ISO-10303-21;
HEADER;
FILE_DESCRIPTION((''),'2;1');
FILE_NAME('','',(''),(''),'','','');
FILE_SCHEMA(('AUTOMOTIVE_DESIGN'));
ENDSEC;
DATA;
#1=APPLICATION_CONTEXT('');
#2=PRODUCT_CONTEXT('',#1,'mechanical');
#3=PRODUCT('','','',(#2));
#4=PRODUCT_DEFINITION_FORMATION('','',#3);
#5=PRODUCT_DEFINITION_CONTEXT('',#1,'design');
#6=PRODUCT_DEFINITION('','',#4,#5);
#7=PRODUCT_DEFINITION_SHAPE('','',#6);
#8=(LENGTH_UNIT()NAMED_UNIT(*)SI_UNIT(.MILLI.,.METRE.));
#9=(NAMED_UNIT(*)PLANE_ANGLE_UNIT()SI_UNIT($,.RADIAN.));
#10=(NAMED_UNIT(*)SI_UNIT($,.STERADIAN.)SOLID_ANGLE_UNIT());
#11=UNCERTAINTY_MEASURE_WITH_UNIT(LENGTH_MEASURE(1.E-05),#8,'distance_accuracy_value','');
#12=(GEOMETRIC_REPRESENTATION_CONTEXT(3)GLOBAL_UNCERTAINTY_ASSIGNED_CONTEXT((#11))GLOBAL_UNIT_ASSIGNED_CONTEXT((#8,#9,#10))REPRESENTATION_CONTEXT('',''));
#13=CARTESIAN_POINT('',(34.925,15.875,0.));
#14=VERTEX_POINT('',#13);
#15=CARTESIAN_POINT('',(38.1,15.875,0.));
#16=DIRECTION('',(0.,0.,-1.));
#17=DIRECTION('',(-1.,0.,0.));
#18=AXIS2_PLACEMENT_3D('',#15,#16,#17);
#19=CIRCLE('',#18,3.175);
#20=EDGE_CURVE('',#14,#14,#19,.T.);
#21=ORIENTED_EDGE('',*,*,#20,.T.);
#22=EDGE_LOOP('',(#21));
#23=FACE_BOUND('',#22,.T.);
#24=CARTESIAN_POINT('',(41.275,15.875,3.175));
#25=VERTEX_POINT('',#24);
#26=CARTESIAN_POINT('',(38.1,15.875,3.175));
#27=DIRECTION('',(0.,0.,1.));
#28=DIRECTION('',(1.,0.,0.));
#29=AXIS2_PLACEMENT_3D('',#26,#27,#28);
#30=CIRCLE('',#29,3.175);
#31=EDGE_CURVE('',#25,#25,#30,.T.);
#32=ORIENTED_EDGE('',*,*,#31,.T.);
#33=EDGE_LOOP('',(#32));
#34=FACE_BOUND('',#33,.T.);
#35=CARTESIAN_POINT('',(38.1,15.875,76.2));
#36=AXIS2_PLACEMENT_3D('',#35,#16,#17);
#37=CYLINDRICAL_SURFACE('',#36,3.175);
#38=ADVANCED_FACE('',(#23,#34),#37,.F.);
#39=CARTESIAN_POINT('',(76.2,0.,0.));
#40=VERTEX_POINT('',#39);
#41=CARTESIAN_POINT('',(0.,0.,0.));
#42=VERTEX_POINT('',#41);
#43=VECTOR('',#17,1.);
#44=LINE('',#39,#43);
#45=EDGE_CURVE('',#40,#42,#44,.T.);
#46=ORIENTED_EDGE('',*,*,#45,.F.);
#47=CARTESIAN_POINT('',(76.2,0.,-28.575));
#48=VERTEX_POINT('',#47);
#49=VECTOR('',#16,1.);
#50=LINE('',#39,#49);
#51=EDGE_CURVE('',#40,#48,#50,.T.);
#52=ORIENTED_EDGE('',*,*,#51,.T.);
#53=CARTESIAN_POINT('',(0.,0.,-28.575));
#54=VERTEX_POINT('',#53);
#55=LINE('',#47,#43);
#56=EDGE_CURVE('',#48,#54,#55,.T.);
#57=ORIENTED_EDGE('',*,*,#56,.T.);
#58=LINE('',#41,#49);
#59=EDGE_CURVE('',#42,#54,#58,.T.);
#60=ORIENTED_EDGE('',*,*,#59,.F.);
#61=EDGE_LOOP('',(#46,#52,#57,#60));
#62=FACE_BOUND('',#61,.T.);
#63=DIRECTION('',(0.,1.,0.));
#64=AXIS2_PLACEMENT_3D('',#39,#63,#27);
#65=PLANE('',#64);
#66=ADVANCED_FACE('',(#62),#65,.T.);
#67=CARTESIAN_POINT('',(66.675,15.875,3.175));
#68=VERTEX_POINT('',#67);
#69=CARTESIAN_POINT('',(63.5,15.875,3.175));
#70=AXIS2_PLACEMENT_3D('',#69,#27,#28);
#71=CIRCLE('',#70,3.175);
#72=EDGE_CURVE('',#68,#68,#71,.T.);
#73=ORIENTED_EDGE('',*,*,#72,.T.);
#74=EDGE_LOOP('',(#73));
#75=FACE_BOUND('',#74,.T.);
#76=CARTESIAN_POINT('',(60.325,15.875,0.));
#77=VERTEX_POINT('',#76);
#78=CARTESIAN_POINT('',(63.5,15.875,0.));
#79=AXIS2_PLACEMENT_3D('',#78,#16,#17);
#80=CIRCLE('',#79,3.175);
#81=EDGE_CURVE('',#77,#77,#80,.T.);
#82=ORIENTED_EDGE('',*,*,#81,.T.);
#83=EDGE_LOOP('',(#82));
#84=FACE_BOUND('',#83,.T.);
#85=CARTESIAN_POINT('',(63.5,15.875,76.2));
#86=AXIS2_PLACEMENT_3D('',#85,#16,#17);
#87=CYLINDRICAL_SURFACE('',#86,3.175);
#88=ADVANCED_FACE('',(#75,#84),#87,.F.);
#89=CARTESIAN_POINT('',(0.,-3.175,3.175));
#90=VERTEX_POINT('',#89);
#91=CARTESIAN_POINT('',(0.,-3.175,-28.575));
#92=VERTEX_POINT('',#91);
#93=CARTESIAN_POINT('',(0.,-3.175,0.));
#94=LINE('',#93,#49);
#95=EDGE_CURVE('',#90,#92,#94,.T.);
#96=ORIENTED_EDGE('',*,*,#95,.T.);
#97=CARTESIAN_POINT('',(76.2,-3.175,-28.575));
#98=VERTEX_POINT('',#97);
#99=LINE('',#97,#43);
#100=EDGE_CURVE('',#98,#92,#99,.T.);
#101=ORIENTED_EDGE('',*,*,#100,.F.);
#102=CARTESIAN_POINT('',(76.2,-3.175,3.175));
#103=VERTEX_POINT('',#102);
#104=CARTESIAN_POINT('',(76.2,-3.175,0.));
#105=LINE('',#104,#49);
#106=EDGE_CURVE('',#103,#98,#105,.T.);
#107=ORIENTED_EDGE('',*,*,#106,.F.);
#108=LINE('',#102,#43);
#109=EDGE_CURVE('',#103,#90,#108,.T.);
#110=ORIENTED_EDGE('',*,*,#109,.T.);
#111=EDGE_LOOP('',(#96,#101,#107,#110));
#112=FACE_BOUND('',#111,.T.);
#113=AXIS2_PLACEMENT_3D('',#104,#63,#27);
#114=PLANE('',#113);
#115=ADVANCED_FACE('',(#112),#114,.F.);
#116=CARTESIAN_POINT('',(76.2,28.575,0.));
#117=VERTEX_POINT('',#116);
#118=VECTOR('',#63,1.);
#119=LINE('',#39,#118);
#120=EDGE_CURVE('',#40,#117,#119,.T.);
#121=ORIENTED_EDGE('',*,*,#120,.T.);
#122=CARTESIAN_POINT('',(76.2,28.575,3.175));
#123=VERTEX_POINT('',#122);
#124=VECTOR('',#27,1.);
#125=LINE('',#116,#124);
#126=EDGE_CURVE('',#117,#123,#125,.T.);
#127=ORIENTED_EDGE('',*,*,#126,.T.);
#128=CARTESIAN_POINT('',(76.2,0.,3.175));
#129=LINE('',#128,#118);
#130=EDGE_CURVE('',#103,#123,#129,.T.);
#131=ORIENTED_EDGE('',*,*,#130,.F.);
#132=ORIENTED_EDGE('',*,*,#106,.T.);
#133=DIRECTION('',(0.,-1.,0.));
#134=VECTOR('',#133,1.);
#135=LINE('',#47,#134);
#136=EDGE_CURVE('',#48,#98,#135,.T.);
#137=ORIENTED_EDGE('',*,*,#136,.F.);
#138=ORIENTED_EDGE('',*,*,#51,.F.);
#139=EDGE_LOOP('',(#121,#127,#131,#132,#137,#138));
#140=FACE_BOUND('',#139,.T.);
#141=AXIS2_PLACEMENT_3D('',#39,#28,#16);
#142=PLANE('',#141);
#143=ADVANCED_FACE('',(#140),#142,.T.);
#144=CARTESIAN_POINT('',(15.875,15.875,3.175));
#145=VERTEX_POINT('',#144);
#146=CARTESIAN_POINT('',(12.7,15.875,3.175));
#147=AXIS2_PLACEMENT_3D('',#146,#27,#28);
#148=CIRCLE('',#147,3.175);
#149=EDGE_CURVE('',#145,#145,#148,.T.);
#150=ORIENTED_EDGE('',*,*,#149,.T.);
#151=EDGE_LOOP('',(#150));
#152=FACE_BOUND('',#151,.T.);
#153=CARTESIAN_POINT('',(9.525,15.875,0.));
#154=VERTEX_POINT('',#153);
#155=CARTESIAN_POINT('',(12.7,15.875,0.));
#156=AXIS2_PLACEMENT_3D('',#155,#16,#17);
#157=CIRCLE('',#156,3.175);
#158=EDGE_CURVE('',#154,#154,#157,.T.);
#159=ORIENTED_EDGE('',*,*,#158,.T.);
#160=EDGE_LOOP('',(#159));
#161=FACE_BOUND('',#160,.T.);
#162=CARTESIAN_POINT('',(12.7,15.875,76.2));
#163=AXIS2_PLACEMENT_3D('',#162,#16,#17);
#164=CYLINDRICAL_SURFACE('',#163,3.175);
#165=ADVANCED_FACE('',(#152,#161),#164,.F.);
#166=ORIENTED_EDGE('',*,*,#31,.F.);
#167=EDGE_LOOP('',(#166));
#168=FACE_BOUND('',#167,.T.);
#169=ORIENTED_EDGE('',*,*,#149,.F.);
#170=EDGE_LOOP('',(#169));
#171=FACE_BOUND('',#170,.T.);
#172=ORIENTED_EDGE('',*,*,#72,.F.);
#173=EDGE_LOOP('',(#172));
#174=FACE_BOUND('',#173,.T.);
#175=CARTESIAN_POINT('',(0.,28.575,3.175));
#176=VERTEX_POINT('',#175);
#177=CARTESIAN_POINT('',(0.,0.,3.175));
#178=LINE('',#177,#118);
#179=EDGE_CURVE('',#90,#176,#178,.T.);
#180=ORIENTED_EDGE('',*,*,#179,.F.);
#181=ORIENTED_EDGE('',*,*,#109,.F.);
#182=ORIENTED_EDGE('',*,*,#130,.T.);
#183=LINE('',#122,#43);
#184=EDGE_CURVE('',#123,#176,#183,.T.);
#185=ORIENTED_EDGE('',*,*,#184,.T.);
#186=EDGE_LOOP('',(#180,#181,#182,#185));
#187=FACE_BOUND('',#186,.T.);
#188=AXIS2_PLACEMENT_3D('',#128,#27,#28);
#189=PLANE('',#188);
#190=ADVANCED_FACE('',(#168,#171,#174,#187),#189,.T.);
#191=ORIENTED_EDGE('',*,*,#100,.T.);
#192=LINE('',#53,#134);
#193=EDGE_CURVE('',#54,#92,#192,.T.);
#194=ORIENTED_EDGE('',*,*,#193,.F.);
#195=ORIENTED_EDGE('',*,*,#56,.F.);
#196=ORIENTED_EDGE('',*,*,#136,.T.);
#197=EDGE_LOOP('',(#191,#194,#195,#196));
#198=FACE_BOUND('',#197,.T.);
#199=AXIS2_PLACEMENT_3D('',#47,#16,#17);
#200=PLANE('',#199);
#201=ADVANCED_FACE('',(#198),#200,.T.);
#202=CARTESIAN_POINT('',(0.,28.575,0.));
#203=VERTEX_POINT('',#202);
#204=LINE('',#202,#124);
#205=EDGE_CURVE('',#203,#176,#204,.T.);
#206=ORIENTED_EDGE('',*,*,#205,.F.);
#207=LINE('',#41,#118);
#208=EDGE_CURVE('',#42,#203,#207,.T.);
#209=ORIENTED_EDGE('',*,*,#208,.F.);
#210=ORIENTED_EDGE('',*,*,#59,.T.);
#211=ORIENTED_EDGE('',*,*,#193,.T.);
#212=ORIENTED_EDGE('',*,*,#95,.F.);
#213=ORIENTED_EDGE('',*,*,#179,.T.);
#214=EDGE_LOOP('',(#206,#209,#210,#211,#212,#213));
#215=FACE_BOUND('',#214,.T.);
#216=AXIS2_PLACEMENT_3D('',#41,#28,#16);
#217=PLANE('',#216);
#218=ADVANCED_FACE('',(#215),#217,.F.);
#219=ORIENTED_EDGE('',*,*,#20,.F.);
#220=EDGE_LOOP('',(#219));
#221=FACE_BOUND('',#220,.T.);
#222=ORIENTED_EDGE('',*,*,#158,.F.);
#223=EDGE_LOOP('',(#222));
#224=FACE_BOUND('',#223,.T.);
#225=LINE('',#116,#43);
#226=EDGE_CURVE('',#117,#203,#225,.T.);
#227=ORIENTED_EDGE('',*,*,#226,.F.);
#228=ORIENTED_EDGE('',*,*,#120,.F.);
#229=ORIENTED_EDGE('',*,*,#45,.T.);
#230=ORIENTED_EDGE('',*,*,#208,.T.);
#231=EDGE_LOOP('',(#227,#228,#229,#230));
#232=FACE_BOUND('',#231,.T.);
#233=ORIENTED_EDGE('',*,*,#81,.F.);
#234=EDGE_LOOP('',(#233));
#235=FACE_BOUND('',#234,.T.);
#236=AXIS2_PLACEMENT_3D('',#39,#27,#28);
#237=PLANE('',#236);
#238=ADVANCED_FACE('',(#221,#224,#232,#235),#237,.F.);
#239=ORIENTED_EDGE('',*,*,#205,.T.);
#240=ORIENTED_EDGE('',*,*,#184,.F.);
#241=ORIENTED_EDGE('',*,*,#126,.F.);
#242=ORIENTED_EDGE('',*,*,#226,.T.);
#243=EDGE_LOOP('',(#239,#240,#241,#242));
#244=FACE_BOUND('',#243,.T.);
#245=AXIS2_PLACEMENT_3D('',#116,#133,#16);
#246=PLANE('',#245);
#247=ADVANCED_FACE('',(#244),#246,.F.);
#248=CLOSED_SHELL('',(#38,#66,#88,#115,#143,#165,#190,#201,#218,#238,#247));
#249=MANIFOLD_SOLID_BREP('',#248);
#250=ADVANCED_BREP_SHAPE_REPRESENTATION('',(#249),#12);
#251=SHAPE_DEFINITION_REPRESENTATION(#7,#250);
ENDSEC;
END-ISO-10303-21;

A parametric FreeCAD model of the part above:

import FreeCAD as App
import Part
import Sketcher
from FreeCAD import Vector
Q = App.Units.Quantity


def add_polygon(sketch, points):
    """Adds a closed chain of lines whose ends are joined by coincident constraints."""
    first, n = sketch.GeometryCount, len(points)
    for a, b in zip(points, points[1:] + points[:1]):
        sketch.addGeometry(Part.LineSegment(App.Vector(*a, 0), App.Vector(*b, 0)), False)
    for i in range(n):
        sketch.addConstraint(Sketcher.Constraint("Coincident", first + i, 2, first + (i + 1) % n, 1))

doc = App.newDocument("Part")
body = doc.addObject("PartDesign::Body", "Body")

sketch1 = body.newObject("Sketcher::SketchObject", "Sketch")
sketch1.AttachmentSupport = (doc.getObject("YZ_Plane"), [""])
sketch1.MapMode = "FlatFace"
add_polygon(sketch1, [(28.575, 3.175), (-3.175, 3.175), (-3.175, -28.575), (0, -28.575), (0, 0), (28.575, 0)])
sketch1.addConstraint([
    Sketcher.Constraint("Horizontal", 0),
    Sketcher.Constraint("Vertical", 1),
    Sketcher.Constraint("Horizontal", 2),
    Sketcher.Constraint("Vertical", 3),
    Sketcher.Constraint("Horizontal", 4),
    Sketcher.Constraint("Vertical", 5),
    Sketcher.Constraint("Coincident", 3, 2, -1, 1),
    Sketcher.Constraint("Equal", 0, 1),
    Sketcher.Constraint("Equal", 4, 3),
    Sketcher.Constraint("DistanceX", 0, 2, 0, 1, Q("1.25 in")),
    Sketcher.Constraint("DistanceX", 2, 1, 2, 2, Q("0.125 in")),
])
pad1 = body.newObject("PartDesign::Pad", "Pad")
pad1.Profile = sketch1
pad1.Length = Q("3 in")

sketch2 = body.newObject("Sketcher::SketchObject", "Sketch001")
sketch2.AttachmentSupport = (doc.getObject("XY_Plane"), [""])
sketch2.MapMode = "FlatFace"
sketch2.addGeometry([
    Part.Circle(Vector(38.1, 15.875, 0), Vector(0, 0, 1), 3.175),
    Part.Circle(Vector(63.5, 15.875, 0), Vector(0, 0, 1), 3.175),
    Part.Circle(Vector(12.7, 15.875, 0), Vector(0, 0, 1), 3.175),
], False)
sketch2.addConstraint([
    Sketcher.Constraint("Equal", 0, 1),
    Sketcher.Constraint("Equal", 1, 2),
    Sketcher.Constraint("Horizontal", 0, 3, 1, 3),
    Sketcher.Constraint("Horizontal", 1, 3, 2, 3),
    Sketcher.Constraint("Diameter", 0, Q("0.25 in")),
    Sketcher.Constraint("DistanceX", 0, 3, 1, 3, Q("1 in")),
    Sketcher.Constraint("DistanceX", 2, 3, 0, 3, Q("1 in")),
    Sketcher.Constraint("DistanceX", -1, 1, 0, 3, Q("1.5 in")),
    Sketcher.Constraint("DistanceY", -1, 1, 0, 3, Q("0.625 in")),
])
pocket1 = body.newObject("PartDesign::Pocket", "Pocket")
pocket1.Profile = sketch2
pocket1.Length = Q("3 in")
pocket1.Reversed = True

doc.recompute()
